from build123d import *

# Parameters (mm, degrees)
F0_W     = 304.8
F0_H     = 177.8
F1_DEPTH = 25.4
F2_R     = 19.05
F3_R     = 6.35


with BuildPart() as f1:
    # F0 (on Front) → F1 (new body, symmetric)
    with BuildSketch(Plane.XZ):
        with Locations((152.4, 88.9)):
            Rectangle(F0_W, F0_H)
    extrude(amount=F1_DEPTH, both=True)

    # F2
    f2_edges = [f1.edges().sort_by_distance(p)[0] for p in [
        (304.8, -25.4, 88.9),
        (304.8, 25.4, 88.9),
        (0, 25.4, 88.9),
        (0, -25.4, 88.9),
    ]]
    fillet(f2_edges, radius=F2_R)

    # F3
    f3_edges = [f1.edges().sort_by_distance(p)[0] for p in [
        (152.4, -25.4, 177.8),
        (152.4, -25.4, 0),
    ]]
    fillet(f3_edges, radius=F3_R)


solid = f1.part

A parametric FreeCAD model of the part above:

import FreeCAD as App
import Part
import Sketcher
Q = App.Units.Quantity


def edges_at(feature, points):
    """Names of the edges that pass closest to the given points."""
    edges = feature.Shape.Edges
    near = lambda p: min(range(len(edges)), key=lambda i: edges[i].distToShape(Part.Vertex(*p))[0])
    return sorted({f"Edge{near(p) + 1}" for p in points})


def add_polygon(sketch, points):
    """Adds a closed chain of lines whose ends are joined by coincident constraints."""
    first, n = sketch.GeometryCount, len(points)
    for a, b in zip(points, points[1:] + points[:1]):
        sketch.addGeometry(Part.LineSegment(App.Vector(*a, 0), App.Vector(*b, 0)), False)
    for i in range(n):
        sketch.addConstraint(Sketcher.Constraint("Coincident", first + i, 2, first + (i + 1) % n, 1))

doc = App.newDocument("Part")
body = doc.addObject("PartDesign::Body", "Body")

# Sketch on XZ plane
sketch1 = doc.addObject("Sketcher::SketchObject", "Sketch")
body.addObject(sketch1)
sketch1.AttachmentSupport = (doc.XZ_Plane, [""])
sketch1.MapMode = "FlatFace"
add_polygon(sketch1, [(0, 178), (0, 0), (305, 0), (305, 178)])  # lines 0-3
sketch1.addConstraint(Sketcher.Constraint("Vertical", 0))
sketch1.addConstraint(Sketcher.Constraint("Horizontal", 1))
sketch1.addConstraint(Sketcher.Constraint("Vertical", 2))
sketch1.addConstraint(Sketcher.Constraint("Horizontal", 3))
sketch1.addConstraint(Sketcher.Constraint("Coincident", 0, 2, -1, 1))
sketch1.addConstraint(Sketcher.Constraint("DistanceX", 1, 1, 1, 2, Q("12 in")))
sketch1.addConstraint(Sketcher.Constraint("DistanceY", 0, 2, 0, 1, Q("7 in")))
pad1 = doc.addObject("PartDesign::Pad", "Pad")
body.addObject(pad1)
pad1.Profile = sketch1
pad1.Length = Q("2 in")
pad1.Midplane = True
doc.recompute()

fillet = doc.addObject("PartDesign::Fillet", "Fillet")
body.addObject(fillet)
fillet.Base = (pad1, edges_at(pad1, [
    (304.8, -25.4, 88.9),
    (304.8, 25.4, 88.9),
    (0, 25.4, 88.9),
    (0, -25.4, 88.9),
]))
fillet.Radius = Q("0.75 in")
doc.recompute()

fillet2 = doc.addObject("PartDesign::Fillet", "Fillet001")
body.addObject(fillet2)
fillet2.Base = (fillet, edges_at(fillet, [(152.4, -25.4, 177.8), (152.4, -25.4, 0)]))
fillet2.Radius = Q("0.25 in")

doc.recompute()
